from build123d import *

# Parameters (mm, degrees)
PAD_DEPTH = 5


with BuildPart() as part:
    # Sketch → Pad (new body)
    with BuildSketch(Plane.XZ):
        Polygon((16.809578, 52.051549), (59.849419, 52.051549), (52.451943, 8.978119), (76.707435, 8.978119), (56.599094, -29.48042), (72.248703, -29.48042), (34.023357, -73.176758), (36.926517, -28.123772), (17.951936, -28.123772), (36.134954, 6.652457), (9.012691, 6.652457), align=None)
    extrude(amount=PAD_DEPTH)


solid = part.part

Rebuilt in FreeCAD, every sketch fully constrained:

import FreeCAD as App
import Part
import Sketcher

V = App.Vector


def add_polygon(sketch, points):
    """Adds a closed chain of lines whose ends are joined by coincident constraints."""
    first, n = sketch.GeometryCount, len(points)
    for a, b in zip(points, points[1:] + points[:1]):
        sketch.addGeometry(Part.LineSegment(App.Vector(*a, 0), App.Vector(*b, 0)), False)
    for i in range(n):
        sketch.addConstraint(Sketcher.Constraint("Coincident", first + i, 2, first + (i + 1) % n, 1))

doc = App.newDocument("Part")
body = doc.addObject("PartDesign::Body", "Body")

# Sketch on XZ plane
sketch1 = body.newObject("Sketcher::SketchObject", "Sketch")
sketch1.AttachmentSupport = (doc.getObject("XZ_Plane"), [""])
sketch1.MapMode = "FlatFace"
add_polygon(sketch1, [(60, 52), (17, 52), (9, 7), (36, 7), (18, -28), (37, -28), (34, -73), (72, -29), (57, -29), (77, 9), (52, 9)])  # lines 0-10
sketch1.addConstraint([
    Sketcher.Constraint("Horizontal", 0),
    Sketcher.Constraint("Horizontal", 2),
    Sketcher.Constraint("Horizontal", 4),
    Sketcher.Constraint("Horizontal", 7),
    Sketcher.Constraint("Horizontal", 9),
    Sketcher.Constraint("Parallel", 3, 8),
    Sketcher.Constraint("Parallel", 1, 10),
    Sketcher.Constraint("DistanceX", 0, 2, 0, 1, 43.039841),
    Sketcher.Constraint("DistanceX", 4, 1, 4, 2, 18.974581),
    Sketcher.Constraint("DistanceX", 7, 2, 7, 1, 15.649609),
    Sketcher.Constraint("Distance", 1, 46.063749),
    Sketcher.Constraint("Distance", 3, 39.242939),
    Sketcher.Constraint("Distance", 8, 43.39821),
    Sketcher.Constraint("Distance", 10, 43.704039),
    Sketcher.Constraint("DistanceX", 2, 1, 2, 2, 27.122263),
    Sketcher.Constraint("DistanceX", 9, 2, 9, 1, 24.255492),
    Sketcher.Constraint("DistanceY", -1, 1, 0, 2, 52.051549),
    Sketcher.Constraint("DistanceX", -1, 1, 1, 2, 9.012691),
    Sketcher.Constraint("DistanceY", 3, 2, -1, 1, 28.123772),
    Sketcher.Constraint("DistanceY", 5, 2, -1, 1, 73.176758),
    Sketcher.Constraint("DistanceY", 6, 2, -1, 1, 29.48042),
    Sketcher.Constraint("DistanceX", 5, 2, 4, 2, 2.90316),
])
pad1 = body.newObject("PartDesign::Pad", "Pad")
pad1.Profile = sketch1
pad1.Length = 5

doc.recompute()
